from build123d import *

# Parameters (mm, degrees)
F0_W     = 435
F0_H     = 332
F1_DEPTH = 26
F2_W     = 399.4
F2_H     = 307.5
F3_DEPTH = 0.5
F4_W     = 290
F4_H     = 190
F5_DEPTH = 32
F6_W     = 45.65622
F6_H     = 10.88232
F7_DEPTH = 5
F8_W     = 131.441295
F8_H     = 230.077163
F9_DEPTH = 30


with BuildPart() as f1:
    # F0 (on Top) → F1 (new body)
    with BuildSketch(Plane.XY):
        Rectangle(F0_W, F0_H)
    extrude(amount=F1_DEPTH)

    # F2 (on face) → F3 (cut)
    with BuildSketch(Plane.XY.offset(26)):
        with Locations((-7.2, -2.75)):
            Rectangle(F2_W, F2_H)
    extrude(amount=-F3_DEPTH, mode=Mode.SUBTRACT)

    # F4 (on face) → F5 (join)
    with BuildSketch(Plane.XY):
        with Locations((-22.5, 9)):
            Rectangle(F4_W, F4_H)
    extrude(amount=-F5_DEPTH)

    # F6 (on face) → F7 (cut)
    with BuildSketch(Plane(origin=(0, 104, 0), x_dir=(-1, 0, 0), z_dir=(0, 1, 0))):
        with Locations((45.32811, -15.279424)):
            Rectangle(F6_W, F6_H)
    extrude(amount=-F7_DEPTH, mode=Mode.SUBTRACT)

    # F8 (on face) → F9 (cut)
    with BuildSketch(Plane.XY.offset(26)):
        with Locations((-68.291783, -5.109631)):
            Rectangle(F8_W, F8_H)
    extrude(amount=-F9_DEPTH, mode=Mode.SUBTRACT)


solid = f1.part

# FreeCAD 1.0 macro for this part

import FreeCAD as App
import Part
import Sketcher
from FreeCAD import Vector

doc = App.newDocument("Part")
body = doc.addObject("PartDesign::Body", "Body")

# Sketch on XY plane
sketch1 = body.newObject("Sketcher::SketchObject", "Sketch")
sketch1.AttachmentSupport = (doc.getObject("XY_Plane"), [""])
sketch1.MapMode = "FlatFace"
sketch1.addGeometry([
    Part.LineSegment(Vector(-218, 166, 0), Vector(-218, -166, 0)),
    Part.LineSegment(Vector(-218, -166, 0), Vector(218, -166, 0)),
    Part.LineSegment(Vector(218, -166, 0), Vector(218, 166, 0)),
    Part.LineSegment(Vector(218, 166, 0), Vector(-218, 166, 0)),
], False)
sketch1.addConstraint([
    Sketcher.Constraint("Coincident", 0, 2, 1, 1),
    Sketcher.Constraint("Coincident", 1, 2, 2, 1),
    Sketcher.Constraint("Coincident", 2, 2, 3, 1),
    Sketcher.Constraint("Coincident", 3, 2, 0, 1),
    Sketcher.Constraint("Vertical", 0),
    Sketcher.Constraint("Horizontal", 1),
    Sketcher.Constraint("Vertical", 2),
    Sketcher.Constraint("Horizontal", 3),
    Sketcher.Constraint("Symmetric", 0, 2, 2, 2, -1, 1),
    Sketcher.Constraint("DistanceX", 1, 1, 1, 2, 435.0),
    Sketcher.Constraint("DistanceY", 0, 2, 0, 1, 332.0),
])
pad1 = body.newObject("PartDesign::Pad", "Pad")
pad1.Profile = sketch1
pad1.Length = 26

# Sketch on XY plane
sketch2 = body.newObject("Sketcher::SketchObject", "Sketch001")
sketch2.AttachmentSupport = (doc.getObject("XY_Plane"), [""])
sketch2.MapMode = "FlatFace"
sketch2.AttachmentOffset = App.Placement(Vector(0, 0, 26), App.Rotation())
sketch2.addGeometry([
    Part.LineSegment(Vector(-207, 151, 0), Vector(-207, -156, 0)),
    Part.LineSegment(Vector(-207, -156, 0), Vector(192, -156, 0)),
    Part.LineSegment(Vector(192, -156, 0), Vector(192, 151, 0)),
    Part.LineSegment(Vector(192, 151, 0), Vector(-207, 151, 0)),
], False)
sketch2.addConstraint([
    Sketcher.Constraint("Coincident", 0, 2, 1, 1),
    Sketcher.Constraint("Coincident", 1, 2, 2, 1),
    Sketcher.Constraint("Coincident", 2, 2, 3, 1),
    Sketcher.Constraint("Coincident", 3, 2, 0, 1),
    Sketcher.Constraint("Vertical", 0),
    Sketcher.Constraint("Horizontal", 1),
    Sketcher.Constraint("Vertical", 2),
    Sketcher.Constraint("Horizontal", 3),
    Sketcher.Constraint("DistanceX", 1, 1, 1, 2, 399.4),
    Sketcher.Constraint("DistanceY", 0, 2, 0, 1, 307.5),
    Sketcher.Constraint("DistanceY", -1, 1, 2, 2, 151.0),
    Sketcher.Constraint("DistanceX", 0, 2, -1, 1, 206.9),
])
pocket1 = body.newObject("PartDesign::Pocket", "Pocket")
pocket1.Profile = sketch2
pocket1.Length = 0.5

# Sketch on XY plane
sketch3 = body.newObject("Sketcher::SketchObject", "Sketch002")
sketch3.AttachmentSupport = (doc.getObject("XY_Plane"), [""])
sketch3.MapMode = "FlatFace"
sketch3.addGeometry([
    Part.LineSegment(Vector(-168, 104, 0), Vector(-168, -86, 0)),
    Part.LineSegment(Vector(-168, -86, 0), Vector(122, -86, 0)),
    Part.LineSegment(Vector(122, -86, 0), Vector(122, 104, 0)),
    Part.LineSegment(Vector(122, 104, 0), Vector(-168, 104, 0)),
], False)
sketch3.addConstraint([
    Sketcher.Constraint("Coincident", 0, 2, 1, 1),
    Sketcher.Constraint("Coincident", 1, 2, 2, 1),
    Sketcher.Constraint("Coincident", 2, 2, 3, 1),
    Sketcher.Constraint("Coincident", 3, 2, 0, 1),
    Sketcher.Constraint("Vertical", 0),
    Sketcher.Constraint("Horizontal", 1),
    Sketcher.Constraint("Vertical", 2),
    Sketcher.Constraint("Horizontal", 3),
    Sketcher.Constraint("DistanceX", 1, 1, 1, 2, 290.0),
    Sketcher.Constraint("DistanceY", 0, 2, 0, 1, 190.0),
    Sketcher.Constraint("DistanceY", 0, 2, -1, 1, 86.0),
    Sketcher.Constraint("DistanceX", 0, 2, -1, 1, 167.5),
])
pad2 = body.newObject("PartDesign::Pad", "Pad001")
pad2.Profile = sketch3
pad2.Length = 32
pad2.Reversed = True

# Sketch on XZ plane
sketch4 = body.newObject("Sketcher::SketchObject", "Sketch003")
sketch4.AttachmentSupport = (doc.getObject("XZ_Plane"), [""])
sketch4.MapMode = "FlatFace"
sketch4.AttachmentOffset = App.Placement(Vector(0, 0, -104), App.Rotation())
sketch4.addGeometry([
    Part.LineSegment(Vector(-22, -10, 0), Vector(-22, -21, 0)),
    Part.LineSegment(Vector(-22, -21, 0), Vector(-68, -21, 0)),
    Part.LineSegment(Vector(-68, -21, 0), Vector(-68, -10, 0)),
    Part.LineSegment(Vector(-68, -10, 0), Vector(-22, -10, 0)),
], False)
sketch4.addConstraint([
    Sketcher.Constraint("Coincident", 0, 2, 1, 1),
    Sketcher.Constraint("Coincident", 1, 2, 2, 1),
    Sketcher.Constraint("Coincident", 2, 2, 3, 1),
    Sketcher.Constraint("Coincident", 3, 2, 0, 1),
    Sketcher.Constraint("Vertical", 0),
    Sketcher.Constraint("Horizontal", 1),
    Sketcher.Constraint("Vertical", 2),
    Sketcher.Constraint("Horizontal", 3),
    Sketcher.Constraint("DistanceX", 0, 2, -1, 1, 22.5),
    Sketcher.Constraint("DistanceX", 1, 2, 1, 1, 45.65622),
    Sketcher.Constraint("DistanceY", 0, 2, 0, 1, 10.88232),
    Sketcher.Constraint("DistanceY", 0, 2, -1, 1, 20.720584),
])
pocket2 = body.newObject("PartDesign::Pocket", "Pocket001")
pocket2.Profile = sketch4
pocket2.Length = 5
pocket2.Reversed = True

# Sketch on XY plane
sketch5 = body.newObject("Sketcher::SketchObject", "Sketch004")
sketch5.AttachmentSupport = (doc.getObject("XY_Plane"), [""])
sketch5.MapMode = "FlatFace"
sketch5.AttachmentOffset = App.Placement(Vector(0, 0, 26), App.Rotation())
sketch5.addGeometry([
    Part.LineSegment(Vector(-134, 110, 0), Vector(-134, -120, 0)),
    Part.LineSegment(Vector(-134, -120, 0), Vector(-3, -120, 0)),
    Part.LineSegment(Vector(-3, -120, 0), Vector(-3, 110, 0)),
    Part.LineSegment(Vector(-3, 110, 0), Vector(-134, 110, 0)),
], False)
sketch5.addConstraint([
    Sketcher.Constraint("Coincident", 0, 2, 1, 1),
    Sketcher.Constraint("Coincident", 1, 2, 2, 1),
    Sketcher.Constraint("Coincident", 2, 2, 3, 1),
    Sketcher.Constraint("Coincident", 3, 2, 0, 1),
    Sketcher.Constraint("Vertical", 0),
    Sketcher.Constraint("Horizontal", 1),
    Sketcher.Constraint("Vertical", 2),
    Sketcher.Constraint("Horizontal", 3),
    Sketcher.Constraint("DistanceX", 1, 1, 1, 2, 131.441295),
    Sketcher.Constraint("DistanceY", 0, 2, 0, 1, 230.077163),
    Sketcher.Constraint("DistanceX", 0, 2, -1, 1, 134.01243),
    Sketcher.Constraint("DistanceY", -1, 1, 2, 2, 109.92895),
])
pocket3 = body.newObject("PartDesign::Pocket", "Pocket002")
pocket3.Profile = sketch5
pocket3.Length = 30

doc.recompute()
